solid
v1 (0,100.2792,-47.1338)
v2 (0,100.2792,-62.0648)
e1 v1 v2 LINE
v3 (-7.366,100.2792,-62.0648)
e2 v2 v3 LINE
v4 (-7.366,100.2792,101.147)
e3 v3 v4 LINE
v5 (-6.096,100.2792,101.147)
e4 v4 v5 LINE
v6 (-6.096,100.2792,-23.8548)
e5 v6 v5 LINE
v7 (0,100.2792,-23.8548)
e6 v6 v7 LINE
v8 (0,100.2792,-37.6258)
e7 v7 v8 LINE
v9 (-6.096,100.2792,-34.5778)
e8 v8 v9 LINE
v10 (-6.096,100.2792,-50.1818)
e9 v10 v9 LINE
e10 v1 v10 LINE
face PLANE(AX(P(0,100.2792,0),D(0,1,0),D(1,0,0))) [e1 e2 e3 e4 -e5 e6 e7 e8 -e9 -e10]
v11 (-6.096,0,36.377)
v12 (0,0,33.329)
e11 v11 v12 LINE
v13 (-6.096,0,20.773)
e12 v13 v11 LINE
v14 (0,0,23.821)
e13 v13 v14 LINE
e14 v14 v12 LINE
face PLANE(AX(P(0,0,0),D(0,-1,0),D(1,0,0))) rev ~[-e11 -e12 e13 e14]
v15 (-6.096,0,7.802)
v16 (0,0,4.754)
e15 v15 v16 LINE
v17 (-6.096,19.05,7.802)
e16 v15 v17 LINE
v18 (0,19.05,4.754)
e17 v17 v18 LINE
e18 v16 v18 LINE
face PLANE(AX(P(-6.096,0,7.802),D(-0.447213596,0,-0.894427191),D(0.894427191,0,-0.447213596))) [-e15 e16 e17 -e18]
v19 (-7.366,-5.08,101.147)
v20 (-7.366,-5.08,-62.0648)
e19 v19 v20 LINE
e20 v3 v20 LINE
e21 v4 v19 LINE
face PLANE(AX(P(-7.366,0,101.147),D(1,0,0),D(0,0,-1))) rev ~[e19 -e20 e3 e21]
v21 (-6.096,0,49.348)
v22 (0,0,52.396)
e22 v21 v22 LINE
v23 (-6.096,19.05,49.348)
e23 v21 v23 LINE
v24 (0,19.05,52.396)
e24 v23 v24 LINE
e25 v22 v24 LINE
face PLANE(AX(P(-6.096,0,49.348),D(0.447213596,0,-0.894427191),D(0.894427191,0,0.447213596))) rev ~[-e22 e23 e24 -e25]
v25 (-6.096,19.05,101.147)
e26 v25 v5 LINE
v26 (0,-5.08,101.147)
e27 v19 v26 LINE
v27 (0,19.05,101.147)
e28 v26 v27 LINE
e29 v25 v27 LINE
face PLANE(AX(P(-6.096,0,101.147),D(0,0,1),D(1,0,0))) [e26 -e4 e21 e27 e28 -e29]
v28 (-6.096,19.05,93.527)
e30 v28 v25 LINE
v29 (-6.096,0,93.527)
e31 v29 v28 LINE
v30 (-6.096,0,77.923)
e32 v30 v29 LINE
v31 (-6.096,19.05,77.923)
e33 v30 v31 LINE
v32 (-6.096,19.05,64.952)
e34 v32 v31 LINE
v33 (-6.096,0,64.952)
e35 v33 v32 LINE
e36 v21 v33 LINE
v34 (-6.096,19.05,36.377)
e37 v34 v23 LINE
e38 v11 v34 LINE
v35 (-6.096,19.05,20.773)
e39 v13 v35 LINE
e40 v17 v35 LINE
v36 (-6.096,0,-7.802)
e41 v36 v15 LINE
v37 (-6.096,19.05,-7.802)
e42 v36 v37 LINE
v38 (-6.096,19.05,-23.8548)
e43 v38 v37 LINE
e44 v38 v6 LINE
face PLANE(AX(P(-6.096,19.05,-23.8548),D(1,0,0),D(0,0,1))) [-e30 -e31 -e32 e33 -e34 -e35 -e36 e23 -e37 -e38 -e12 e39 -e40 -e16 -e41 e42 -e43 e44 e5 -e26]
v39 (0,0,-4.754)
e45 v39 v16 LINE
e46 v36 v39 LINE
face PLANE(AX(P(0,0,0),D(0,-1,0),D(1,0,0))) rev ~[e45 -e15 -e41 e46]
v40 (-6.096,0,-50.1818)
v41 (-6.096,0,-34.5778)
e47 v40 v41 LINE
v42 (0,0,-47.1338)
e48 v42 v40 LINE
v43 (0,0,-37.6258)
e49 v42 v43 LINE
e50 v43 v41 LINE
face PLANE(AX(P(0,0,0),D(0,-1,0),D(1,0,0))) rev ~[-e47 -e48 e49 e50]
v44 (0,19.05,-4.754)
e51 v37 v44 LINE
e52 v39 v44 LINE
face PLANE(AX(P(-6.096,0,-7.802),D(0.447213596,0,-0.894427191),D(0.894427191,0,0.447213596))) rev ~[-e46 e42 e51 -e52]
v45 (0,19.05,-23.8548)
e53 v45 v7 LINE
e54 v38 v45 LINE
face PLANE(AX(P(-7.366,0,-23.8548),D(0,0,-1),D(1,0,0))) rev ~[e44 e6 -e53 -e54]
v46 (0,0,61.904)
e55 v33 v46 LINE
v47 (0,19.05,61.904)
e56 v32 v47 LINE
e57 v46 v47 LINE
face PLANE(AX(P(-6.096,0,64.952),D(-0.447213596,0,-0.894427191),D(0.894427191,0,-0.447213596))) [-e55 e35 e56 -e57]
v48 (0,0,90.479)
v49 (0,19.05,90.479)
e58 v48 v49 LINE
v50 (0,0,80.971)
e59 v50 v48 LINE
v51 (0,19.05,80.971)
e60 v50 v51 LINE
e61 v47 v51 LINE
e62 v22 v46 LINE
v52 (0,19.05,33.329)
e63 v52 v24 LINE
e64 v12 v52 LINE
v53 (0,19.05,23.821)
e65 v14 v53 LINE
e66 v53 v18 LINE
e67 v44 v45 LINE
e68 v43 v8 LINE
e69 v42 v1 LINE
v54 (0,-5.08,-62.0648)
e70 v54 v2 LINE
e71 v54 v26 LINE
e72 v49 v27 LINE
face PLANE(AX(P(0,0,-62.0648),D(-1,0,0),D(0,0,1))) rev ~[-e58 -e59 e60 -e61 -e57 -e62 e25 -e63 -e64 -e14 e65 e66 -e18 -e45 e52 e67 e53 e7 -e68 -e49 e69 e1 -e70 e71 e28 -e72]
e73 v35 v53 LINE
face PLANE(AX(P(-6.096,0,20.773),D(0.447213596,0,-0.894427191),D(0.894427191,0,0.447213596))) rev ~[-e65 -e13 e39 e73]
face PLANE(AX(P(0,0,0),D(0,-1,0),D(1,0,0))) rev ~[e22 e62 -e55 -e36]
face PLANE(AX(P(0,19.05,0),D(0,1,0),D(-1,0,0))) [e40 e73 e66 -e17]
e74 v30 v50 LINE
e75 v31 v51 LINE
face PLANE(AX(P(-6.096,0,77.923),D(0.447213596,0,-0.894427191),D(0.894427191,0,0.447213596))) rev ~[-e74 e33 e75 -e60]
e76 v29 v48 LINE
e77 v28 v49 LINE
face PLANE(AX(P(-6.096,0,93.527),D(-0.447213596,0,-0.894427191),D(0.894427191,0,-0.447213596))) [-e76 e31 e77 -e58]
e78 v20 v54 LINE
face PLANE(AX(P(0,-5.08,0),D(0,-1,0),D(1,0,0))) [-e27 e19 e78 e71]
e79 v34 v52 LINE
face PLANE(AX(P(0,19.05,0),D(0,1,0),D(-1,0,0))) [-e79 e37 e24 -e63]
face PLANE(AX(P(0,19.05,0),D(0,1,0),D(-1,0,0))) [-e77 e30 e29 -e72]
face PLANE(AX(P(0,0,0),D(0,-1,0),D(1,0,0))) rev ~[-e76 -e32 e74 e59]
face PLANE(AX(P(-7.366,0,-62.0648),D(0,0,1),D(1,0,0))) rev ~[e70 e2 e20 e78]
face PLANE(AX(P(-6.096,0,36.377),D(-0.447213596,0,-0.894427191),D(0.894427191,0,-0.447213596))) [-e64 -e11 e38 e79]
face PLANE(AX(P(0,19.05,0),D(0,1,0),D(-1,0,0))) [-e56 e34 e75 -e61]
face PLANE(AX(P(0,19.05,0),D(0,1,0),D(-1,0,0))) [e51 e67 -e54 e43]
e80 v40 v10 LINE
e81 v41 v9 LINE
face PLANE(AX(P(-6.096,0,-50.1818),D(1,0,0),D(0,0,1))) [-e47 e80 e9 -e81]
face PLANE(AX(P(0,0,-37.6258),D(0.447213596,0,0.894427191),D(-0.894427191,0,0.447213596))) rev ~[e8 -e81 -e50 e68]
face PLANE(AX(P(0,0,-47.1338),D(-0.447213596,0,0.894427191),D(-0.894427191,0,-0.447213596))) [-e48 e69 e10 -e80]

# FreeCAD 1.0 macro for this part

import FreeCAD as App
import Part
import Sketcher

V = App.Vector
Q = App.Units.Quantity


def add_polygon(sketch, points):
    """Adds a closed chain of lines whose ends are joined by coincident constraints."""
    first, n = sketch.GeometryCount, len(points)
    for a, b in zip(points, points[1:] + points[:1]):
        sketch.addGeometry(Part.LineSegment(App.Vector(*a, 0), App.Vector(*b, 0)), False)
    for i in range(n):
        sketch.addConstraint(Sketcher.Constraint("Coincident", first + i, 2, first + (i + 1) % n, 1))

doc = App.newDocument("Part")
body = doc.addObject("PartDesign::Body", "Body")

# Sketch on XZ plane
sketch1 = body.newObject("Sketcher::SketchObject", "Sketch")
sketch1.AttachmentSupport = (doc.getObject("XZ_Plane"), [""])
sketch1.MapMode = "FlatFace"
add_polygon(sketch1, [(-7.366, -23.8548), (-7.366, 101.147), (0, 101.147), (0, 90.479), (-6.096, 93.527), (-6.096, 77.923), (0, 80.971), (0, 61.904), (-6.096, 64.952), (-6.096, 49.348), (0, 52.396), (0, 33.329), (-6.096, 36.377), (-6.096, 20.773), (0, 23.821), (0, 4.754), (-6.096, 7.802), (-6.096, -7.802), (0, -4.754), (0, -23.8548)])  # lines 0-19
sketch1.addConstraint(Sketcher.Constraint("Vertical", 0))
sketch1.addConstraint(Sketcher.Constraint("Horizontal", 1))
sketch1.addConstraint(Sketcher.Constraint("Vertical", 2))
sketch1.addConstraint(Sketcher.Constraint("Vertical", 4))
sketch1.addConstraint(Sketcher.Constraint("Vertical", 6))
sketch1.addConstraint(Sketcher.Constraint("Vertical", 8))
sketch1.addConstraint(Sketcher.Constraint("Vertical", 10))
sketch1.addConstraint(Sketcher.Constraint("Vertical", 12))
sketch1.addConstraint(Sketcher.Constraint("Vertical", 14))
sketch1.addConstraint(Sketcher.Constraint("Vertical", 16))
sketch1.addConstraint(Sketcher.Constraint("Vertical", 18))
sketch1.addConstraint(Sketcher.Constraint("Horizontal", 19))
sketch1.addConstraint(Sketcher.Constraint("Symmetric", 14, 2, 17, 2, -1, 1))
sketch1.addConstraint(Sketcher.Constraint("PointOnObject", 1, 2, -2))
sketch1.addConstraint(Sketcher.Constraint("PointOnObject", 5, 2, -2))
sketch1.addConstraint(Sketcher.Constraint("PointOnObject", 9, 2, -2))
sketch1.addConstraint(Sketcher.Constraint("PointOnObject", 13, 2, -2))
sketch1.addConstraint(Sketcher.Constraint("Parallel", 3, 7))
sketch1.addConstraint(Sketcher.Constraint("Parallel", 5, 9))
sketch1.addConstraint(Sketcher.Constraint("Parallel", 7, 11))
sketch1.addConstraint(Sketcher.Constraint("Parallel", 9, 13))
sketch1.addConstraint(Sketcher.Constraint("Parallel", 11, 15))
sketch1.addConstraint(Sketcher.Constraint("Parallel", 13, 17))
sketch1.addConstraint(Sketcher.Constraint("Vertical", 4, 2, 7, 2))
sketch1.addConstraint(Sketcher.Constraint("Vertical", 8, 2, 11, 2))
sketch1.addConstraint(Sketcher.Constraint("Vertical", 12, 2, 15, 2))
sketch1.addConstraint(Sketcher.Constraint("Equal", 4, 8))
sketch1.addConstraint(Sketcher.Constraint("Equal", 6, 10))
sketch1.addConstraint(Sketcher.Constraint("Equal", 8, 12))
sketch1.addConstraint(Sketcher.Constraint("Equal", 10, 14))
sketch1.addConstraint(Sketcher.Constraint("Equal", 12, 16))
sketch1.addConstraint(Sketcher.Constraint("Equal", 3, 5))
sketch1.addConstraint(Sketcher.Constraint("DistanceX", 1, 1, 1, 2, Q("0.29 in")))
sketch1.addConstraint(Sketcher.Constraint("DistanceY", 3, 2, 0, 2, Q("0.3 in")))
sketch1.addConstraint(Sketcher.Constraint("DistanceX", 3, 2, -1, 1, Q("0.24 in")))
sketch1.addConstraint(Sketcher.Constraint("DistanceY", 2, 2, 3, 2, Q("0.12 in")))
sketch1.addConstraint(Sketcher.Constraint("DistanceY", 6, 2, 2, 2, Q("1.125 in")))
sketch1.addConstraint(Sketcher.Constraint("DistanceY", 18, 2, 16, 2, Q("0.632 in")))
sketch1.addConstraint(Sketcher.Constraint("DistanceY", 0, 1, 0, 2, Q("125.0018 mm")))
pad1 = body.newObject("PartDesign::Pad", "Pad")
pad1.Profile = sketch1
pad1.Length = Q("0.75 in")
pad1.Reversed = True

# Sketch on XZ plane
sketch2 = body.newObject("Sketcher::SketchObject", "Sketch001")
sketch2.AttachmentSupport = (doc.getObject("XZ_Plane"), [""])
sketch2.MapMode = "FlatFace"
add_polygon(sketch2, [(-7.366, -23.8548), (-7.366, -62.0648), (0, -62.0648), (0, -47.1338), (-6.096, -50.1818), (-6.096, -34.5778), (0, -37.6258), (0, -23.8548)])  # lines 0-7
sketch2.addConstraint(Sketcher.Constraint("Vertical", 0))
sketch2.addConstraint(Sketcher.Constraint("Horizontal", 1))
sketch2.addConstraint(Sketcher.Constraint("Vertical", 2))
sketch2.addConstraint(Sketcher.Constraint("Vertical", 4))
sketch2.addConstraint(Sketcher.Constraint("Vertical", 6))
sketch2.addConstraint(Sketcher.Constraint("Horizontal", 7))
sketch2.addConstraint(Sketcher.Constraint("PointOnObject", 1, 2, -2))
sketch2.addConstraint(Sketcher.Constraint("PointOnObject", 5, 2, -2))
sketch2.addConstraint(Sketcher.Constraint("Equal", 3, 5))
sketch2.addConstraint(Sketcher.Constraint("DistanceX", 1, 1, 1, 2, Q("0.29 in")))
sketch2.addConstraint(Sketcher.Constraint("DistanceX", 3, 2, -1, 1, Q("0.24 in")))
sketch2.addConstraint(Sketcher.Constraint("DistanceY", 3, 2, 2, 2, Q("0.12 in")))
sketch2.addConstraint(Sketcher.Constraint("DistanceY", 0, 2, 0, 1, Q("38.21 mm")))
sketch2.addConstraint(Sketcher.Constraint("DistanceY", 2, 1, 2, 2, Q("14.931 mm")))
sketch2.addConstraint(Sketcher.Constraint("DistanceY", 4, 1, 4, 2, Q("15.604 mm")))
sketch2.addConstraint(Sketcher.Constraint("DistanceY", 0, 2, -1, 1, Q("2.4435 in")))
pad2 = body.newObject("PartDesign::Pad", "Pad001")
pad2.Profile = sketch2
pad2.Length = Q("3.948 in")
pad2.Reversed = True

# Sketch on XZ plane
sketch3 = body.newObject("Sketcher::SketchObject", "Sketch002")
sketch3.AttachmentSupport = (doc.getObject("XZ_Plane"), [""])
sketch3.MapMode = "FlatFace"
sketch3.AttachmentOffset = App.Placement(V(0, 0, -0.75 * 25.4), App.Rotation())
add_polygon(sketch3, [(-6.096, 101.147), (-6.096, -23.8548), (-7.366, -23.8548), (-7.366, 101.147)])  # lines 0-3
sketch3.addConstraint(Sketcher.Constraint("Vertical", 0))
sketch3.addConstraint(Sketcher.Constraint("Horizontal", 1))
sketch3.addConstraint(Sketcher.Constraint("Vertical", 2))
sketch3.addConstraint(Sketcher.Constraint("Horizontal", 3))
sketch3.addConstraint(Sketcher.Constraint("DistanceX", 1, 2, 1, 1, Q("0.05 in")))
sketch3.addConstraint(Sketcher.Constraint("DistanceX", 0, 2, -1, 1, Q("0.24 in")))
sketch3.addConstraint(Sketcher.Constraint("DistanceY", 0, 2, 0, 1, Q("125.0018 mm")))
sketch3.addConstraint(Sketcher.Constraint("DistanceY", 0, 2, -1, 1, Q("23.8548 mm")))
pad3 = body.newObject("PartDesign::Pad", "Pad002")
pad3.Profile = sketch3
pad3.Length = Q("3.198 in")
pad3.Reversed = True

# Sketch on XZ plane
sketch4 = body.newObject("Sketcher::SketchObject", "Sketch003")
sketch4.AttachmentSupport = (doc.getObject("XZ_Plane"), [""])
sketch4.MapMode = "FlatFace"
add_polygon(sketch4, [(0, 101.147), (-7.366, 101.147), (-7.366, -62.0648), (0, -62.0648)])  # lines 0-3
sketch4.addConstraint(Sketcher.Constraint("Horizontal", 0))
sketch4.addConstraint(Sketcher.Constraint("Vertical", 1))
sketch4.addConstraint(Sketcher.Constraint("Horizontal", 2))
sketch4.addConstraint(Sketcher.Constraint("Vertical", 3))
sketch4.addConstraint(Sketcher.Constraint("PointOnObject", 2, 2, -2))
sketch4.addConstraint(Sketcher.Constraint("DistanceX", 0, 2, 0, 1, Q("0.29 in")))
sketch4.addConstraint(Sketcher.Constraint("DistanceY", 1, 2, 1, 1, Q("163.2118 mm")))
sketch4.addConstraint(Sketcher.Constraint("DistanceY", 1, 2, -1, 1, Q("2.4435 in")))
pad4 = body.newObject("PartDesign::Pad", "Pad003")
pad4.Profile = sketch4
pad4.Length = Q("0.2 in")

doc.recompute()
